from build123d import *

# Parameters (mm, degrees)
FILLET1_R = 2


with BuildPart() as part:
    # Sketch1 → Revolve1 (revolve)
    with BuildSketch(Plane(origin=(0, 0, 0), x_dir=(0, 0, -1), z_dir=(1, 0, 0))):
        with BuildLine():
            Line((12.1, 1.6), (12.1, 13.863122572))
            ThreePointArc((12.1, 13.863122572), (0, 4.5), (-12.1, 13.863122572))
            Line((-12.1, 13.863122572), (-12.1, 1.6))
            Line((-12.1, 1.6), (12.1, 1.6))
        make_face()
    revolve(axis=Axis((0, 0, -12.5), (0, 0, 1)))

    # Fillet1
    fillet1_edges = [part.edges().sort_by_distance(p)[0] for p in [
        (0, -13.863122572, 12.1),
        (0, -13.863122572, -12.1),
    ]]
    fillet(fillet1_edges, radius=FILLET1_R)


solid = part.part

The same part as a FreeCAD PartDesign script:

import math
import FreeCAD as App
import Part
import Sketcher


def edges_at(feature, points):
    """Names of the edges that pass closest to the given points."""
    edges = feature.Shape.Edges
    near = lambda p: min(range(len(edges)), key=lambda i: edges[i].distToShape(Part.Vertex(*p))[0])
    return sorted({f"Edge{near(p) + 1}" for p in points})

doc = App.newDocument("Part")
body = doc.addObject("PartDesign::Body", "Body")

# Sketch on YZ plane
sketch1 = doc.addObject("Sketcher::SketchObject", "Sketch")
body.addObject(sketch1)
sketch1.AttachmentSupport = (doc.YZ_Plane, [""])
sketch1.MapMode = "FlatFace"
sketch1.addGeometry([
    Part.LineSegment(App.Vector(2, -12, 0), App.Vector(14, -12, 0)),
    Part.ArcOfCircle(Part.Circle(App.Vector(17, 0, 0), App.Vector(0, 0, 1), 12), math.radians(105), math.radians(255)),
    Part.LineSegment(App.Vector(14, 12, 0), App.Vector(2, 12, 0)),
    Part.LineSegment(App.Vector(2, 12, 0), App.Vector(2, -12, 0)),
], False)
sketch1.addConstraint([
    Sketcher.Constraint("Coincident", 0, 2, 1, 2),
    Sketcher.Constraint("Coincident", 1, 1, 2, 1),
    Sketcher.Constraint("Coincident", 2, 2, 3, 1),
    Sketcher.Constraint("Coincident", 3, 2, 0, 1),
    Sketcher.Constraint("Horizontal", 0),
    Sketcher.Constraint("Horizontal", 2),
    Sketcher.Constraint("Vertical", 3),
    Sketcher.Constraint("Symmetric", 0, 2, 1, 1, -1),
    Sketcher.Constraint("Radius", 1, 12.5),
    Sketcher.Constraint("DistanceY", 3, 2, 3, 1, 24.2),
    Sketcher.Constraint("DistanceX", -1, 1, 1, 3, 17.0),
    Sketcher.Constraint("DistanceX", -1, 1, 2, 2, 1.6),
])
revolution = doc.addObject("PartDesign::Revolution", "Revolution")
body.addObject(revolution)
revolution.Profile = sketch1
revolution.ReferenceAxis = (sketch1, ["V_Axis"])
revolution.Angle = 360
doc.recompute()

fillet = doc.addObject("PartDesign::Fillet", "Fillet")
body.addObject(fillet)
fillet.Base = (revolution, edges_at(revolution, [(0, -13.863, 12.1), (0, -13.863, -12.1)]))
fillet.Radius = 2

doc.recompute()
